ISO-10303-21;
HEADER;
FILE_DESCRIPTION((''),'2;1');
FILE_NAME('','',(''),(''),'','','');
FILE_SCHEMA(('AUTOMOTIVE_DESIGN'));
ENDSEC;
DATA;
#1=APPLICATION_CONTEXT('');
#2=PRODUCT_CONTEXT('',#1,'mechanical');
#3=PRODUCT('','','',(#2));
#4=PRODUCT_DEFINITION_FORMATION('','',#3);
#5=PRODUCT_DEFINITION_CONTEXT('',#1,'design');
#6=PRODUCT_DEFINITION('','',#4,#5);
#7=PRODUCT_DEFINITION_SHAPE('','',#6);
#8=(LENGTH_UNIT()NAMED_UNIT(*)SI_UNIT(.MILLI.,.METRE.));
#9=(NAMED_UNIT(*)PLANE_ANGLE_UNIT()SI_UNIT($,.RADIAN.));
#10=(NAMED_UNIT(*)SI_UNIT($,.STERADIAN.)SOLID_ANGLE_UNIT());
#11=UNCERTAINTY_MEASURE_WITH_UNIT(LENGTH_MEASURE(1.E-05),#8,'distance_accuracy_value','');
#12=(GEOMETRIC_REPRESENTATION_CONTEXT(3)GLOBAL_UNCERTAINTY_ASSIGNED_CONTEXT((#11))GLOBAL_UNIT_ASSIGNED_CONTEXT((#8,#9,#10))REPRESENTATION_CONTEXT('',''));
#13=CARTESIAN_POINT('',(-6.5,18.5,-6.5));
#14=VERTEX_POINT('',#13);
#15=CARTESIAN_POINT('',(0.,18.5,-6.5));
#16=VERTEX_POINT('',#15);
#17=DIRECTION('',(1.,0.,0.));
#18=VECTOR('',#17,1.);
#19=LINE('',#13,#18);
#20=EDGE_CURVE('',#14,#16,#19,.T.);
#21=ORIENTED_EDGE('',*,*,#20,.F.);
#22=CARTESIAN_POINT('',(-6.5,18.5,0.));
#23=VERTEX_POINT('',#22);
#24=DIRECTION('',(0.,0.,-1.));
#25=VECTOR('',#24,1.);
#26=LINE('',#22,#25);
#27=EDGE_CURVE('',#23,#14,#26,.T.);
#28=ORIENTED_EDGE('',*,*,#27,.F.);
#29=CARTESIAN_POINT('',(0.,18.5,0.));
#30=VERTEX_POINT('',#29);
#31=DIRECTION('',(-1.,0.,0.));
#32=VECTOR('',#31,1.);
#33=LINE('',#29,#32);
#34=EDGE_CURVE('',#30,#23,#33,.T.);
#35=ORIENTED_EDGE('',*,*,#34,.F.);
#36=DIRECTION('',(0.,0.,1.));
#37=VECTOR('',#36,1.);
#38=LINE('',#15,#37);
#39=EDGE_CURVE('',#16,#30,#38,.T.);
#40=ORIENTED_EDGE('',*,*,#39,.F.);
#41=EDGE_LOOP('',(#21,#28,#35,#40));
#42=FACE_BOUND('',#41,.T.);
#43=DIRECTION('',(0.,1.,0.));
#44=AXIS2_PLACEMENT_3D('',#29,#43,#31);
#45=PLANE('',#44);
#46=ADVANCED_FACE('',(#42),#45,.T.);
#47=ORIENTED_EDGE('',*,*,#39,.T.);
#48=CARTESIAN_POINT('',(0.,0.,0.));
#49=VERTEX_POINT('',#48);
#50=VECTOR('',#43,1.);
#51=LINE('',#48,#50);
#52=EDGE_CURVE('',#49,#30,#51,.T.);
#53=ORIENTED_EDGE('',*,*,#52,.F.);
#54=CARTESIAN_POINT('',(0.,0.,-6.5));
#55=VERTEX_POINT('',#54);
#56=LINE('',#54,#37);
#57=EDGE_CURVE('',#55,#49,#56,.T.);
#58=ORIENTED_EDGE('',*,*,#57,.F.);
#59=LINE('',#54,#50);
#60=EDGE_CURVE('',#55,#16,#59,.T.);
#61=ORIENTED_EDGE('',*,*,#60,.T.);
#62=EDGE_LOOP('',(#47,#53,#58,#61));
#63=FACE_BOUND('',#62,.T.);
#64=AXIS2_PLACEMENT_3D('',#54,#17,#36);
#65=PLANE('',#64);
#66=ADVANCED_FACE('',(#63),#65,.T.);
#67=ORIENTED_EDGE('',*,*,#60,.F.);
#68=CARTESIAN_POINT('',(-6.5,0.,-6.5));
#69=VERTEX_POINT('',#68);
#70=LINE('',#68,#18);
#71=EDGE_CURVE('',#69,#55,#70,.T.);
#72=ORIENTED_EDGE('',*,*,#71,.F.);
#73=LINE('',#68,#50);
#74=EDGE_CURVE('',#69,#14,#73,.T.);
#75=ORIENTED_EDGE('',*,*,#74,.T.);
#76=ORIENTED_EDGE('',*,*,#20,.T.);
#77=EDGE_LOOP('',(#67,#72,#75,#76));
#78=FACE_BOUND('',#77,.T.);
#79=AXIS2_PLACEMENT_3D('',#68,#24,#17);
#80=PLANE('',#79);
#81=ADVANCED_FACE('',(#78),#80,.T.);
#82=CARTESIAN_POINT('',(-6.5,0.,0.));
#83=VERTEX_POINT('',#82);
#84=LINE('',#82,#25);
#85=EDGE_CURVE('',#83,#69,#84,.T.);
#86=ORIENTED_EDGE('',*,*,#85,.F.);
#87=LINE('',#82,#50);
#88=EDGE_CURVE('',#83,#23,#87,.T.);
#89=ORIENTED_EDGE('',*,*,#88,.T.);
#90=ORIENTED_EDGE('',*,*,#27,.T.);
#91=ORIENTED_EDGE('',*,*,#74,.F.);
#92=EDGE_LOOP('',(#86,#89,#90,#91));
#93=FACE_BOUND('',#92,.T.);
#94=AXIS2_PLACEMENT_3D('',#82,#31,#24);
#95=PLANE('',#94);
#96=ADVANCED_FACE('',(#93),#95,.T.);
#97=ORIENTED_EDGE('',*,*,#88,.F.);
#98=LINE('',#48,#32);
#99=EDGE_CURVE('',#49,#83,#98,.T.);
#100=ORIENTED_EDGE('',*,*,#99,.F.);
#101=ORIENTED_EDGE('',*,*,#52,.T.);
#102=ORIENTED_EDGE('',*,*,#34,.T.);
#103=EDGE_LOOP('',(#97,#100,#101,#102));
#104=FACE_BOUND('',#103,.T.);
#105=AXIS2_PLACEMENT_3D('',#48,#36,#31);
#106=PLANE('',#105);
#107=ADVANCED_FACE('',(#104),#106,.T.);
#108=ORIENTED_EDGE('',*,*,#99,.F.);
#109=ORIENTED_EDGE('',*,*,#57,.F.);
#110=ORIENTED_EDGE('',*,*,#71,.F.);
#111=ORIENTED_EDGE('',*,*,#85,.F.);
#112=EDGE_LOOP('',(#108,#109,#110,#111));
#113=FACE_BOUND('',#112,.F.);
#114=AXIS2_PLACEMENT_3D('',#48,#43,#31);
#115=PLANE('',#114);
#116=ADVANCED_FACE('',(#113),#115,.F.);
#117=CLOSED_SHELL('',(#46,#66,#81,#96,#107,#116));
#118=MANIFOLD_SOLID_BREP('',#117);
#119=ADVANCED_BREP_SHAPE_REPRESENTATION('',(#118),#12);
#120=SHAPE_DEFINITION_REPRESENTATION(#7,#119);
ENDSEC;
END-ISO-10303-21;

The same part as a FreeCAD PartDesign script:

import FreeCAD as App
import Part
import Sketcher
from FreeCAD import Vector

doc = App.newDocument("Part")
params = doc.addObject("Spreadsheet::Sheet", "Params")
for row, (alias, value) in enumerate([
    ("sketch1_width", "6.5 mm"),
    ("pad1_length", "18.5 mm"),
], start=1):
    params.set(f"A{row}", alias)
    params.set(f"B{row}", "=" + value)
    params.setAlias(f"B{row}", alias)

body = doc.addObject("PartDesign::Body", "Body")

# Sketch on XZ plane
sketch1 = body.newObject("Sketcher::SketchObject", "Sketch")
sketch1.AttachmentSupport = (doc.getObject("XZ_Plane"), [""])
sketch1.MapMode = "FlatFace"
sketch1.addGeometry([
    Part.LineSegment(Vector(-6, 0, 0), Vector(0, 0, 0)),
    Part.LineSegment(Vector(0, 0, 0), Vector(0, -6, 0)),
    Part.LineSegment(Vector(0, -6, 0), Vector(-6, -6, 0)),
    Part.LineSegment(Vector(-6, -6, 0), Vector(-6, 0, 0)),
], False)
sketch1.addConstraint([
    Sketcher.Constraint("Coincident", 0, 2, 1, 1),
    Sketcher.Constraint("Coincident", 1, 2, 2, 1),
    Sketcher.Constraint("Coincident", 2, 2, 3, 1),
    Sketcher.Constraint("Coincident", 3, 2, 0, 1),
    Sketcher.Constraint("Horizontal", 0),
    Sketcher.Constraint("Vertical", 1),
    Sketcher.Constraint("Horizontal", 2),
    Sketcher.Constraint("Vertical", 3),
    Sketcher.Constraint("Coincident", 0, 2, -1, 1),
    Sketcher.Constraint("Equal", 2, 1),
    Sketcher.Constraint("DistanceX", 0, 1, 0, 2, 6.5),
])
sketch1.setExpression("Constraints[10]", "Params.sketch1_width")
pad1 = body.newObject("PartDesign::Pad", "Pad")
pad1.Profile = sketch1
pad1.setExpression("Length", "Params.pad1_length")
pad1.Reversed = True

doc.recompute()
